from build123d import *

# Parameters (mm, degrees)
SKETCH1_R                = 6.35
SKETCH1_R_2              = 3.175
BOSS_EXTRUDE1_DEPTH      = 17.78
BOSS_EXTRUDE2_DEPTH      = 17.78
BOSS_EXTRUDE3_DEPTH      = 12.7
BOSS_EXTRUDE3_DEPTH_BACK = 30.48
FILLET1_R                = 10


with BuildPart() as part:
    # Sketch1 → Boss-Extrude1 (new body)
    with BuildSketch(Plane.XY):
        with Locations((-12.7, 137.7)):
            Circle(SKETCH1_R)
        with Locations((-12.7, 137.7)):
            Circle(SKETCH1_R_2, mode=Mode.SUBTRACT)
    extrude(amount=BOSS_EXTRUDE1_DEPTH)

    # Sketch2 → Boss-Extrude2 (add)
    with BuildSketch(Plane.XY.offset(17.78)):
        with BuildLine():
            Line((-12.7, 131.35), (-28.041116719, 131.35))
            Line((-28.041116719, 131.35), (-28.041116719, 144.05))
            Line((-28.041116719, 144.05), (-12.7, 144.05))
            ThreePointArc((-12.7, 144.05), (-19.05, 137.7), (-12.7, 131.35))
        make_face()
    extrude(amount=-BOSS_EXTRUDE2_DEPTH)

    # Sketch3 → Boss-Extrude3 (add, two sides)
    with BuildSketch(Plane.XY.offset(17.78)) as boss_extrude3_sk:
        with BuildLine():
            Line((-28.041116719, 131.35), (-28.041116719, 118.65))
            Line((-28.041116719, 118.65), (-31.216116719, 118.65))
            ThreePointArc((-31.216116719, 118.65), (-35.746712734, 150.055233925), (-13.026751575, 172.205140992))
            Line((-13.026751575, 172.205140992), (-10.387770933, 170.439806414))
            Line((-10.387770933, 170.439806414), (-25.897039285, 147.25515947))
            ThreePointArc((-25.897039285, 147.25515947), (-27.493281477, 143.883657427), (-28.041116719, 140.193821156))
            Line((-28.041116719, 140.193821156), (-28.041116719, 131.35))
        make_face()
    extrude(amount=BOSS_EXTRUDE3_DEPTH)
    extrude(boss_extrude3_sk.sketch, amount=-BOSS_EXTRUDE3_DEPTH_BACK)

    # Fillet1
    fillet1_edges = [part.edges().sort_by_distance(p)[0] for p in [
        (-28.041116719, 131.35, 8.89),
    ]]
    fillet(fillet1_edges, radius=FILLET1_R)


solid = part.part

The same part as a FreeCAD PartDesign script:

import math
import FreeCAD as App
import Part
import Sketcher
Q = App.Units.Quantity


def edges_at(feature, points):
    """Names of the edges that pass closest to the given points."""
    edges = feature.Shape.Edges
    near = lambda p: min(range(len(edges)), key=lambda i: edges[i].distToShape(Part.Vertex(*p))[0])
    return sorted({f"Edge{near(p) + 1}" for p in points})

doc = App.newDocument("Part")
body = doc.addObject("PartDesign::Body", "Body")

# Sketch on XY plane
sketch1 = body.newObject("Sketcher::SketchObject", "Sketch")
sketch1.AttachmentSupport = (doc.getObject("XY_Plane"), [""])
sketch1.MapMode = "FlatFace"
sketch1.addGeometry([
    Part.Circle(App.Vector(-12.7, 137.7, 0), App.Vector(0, 0, 1), 6.3),
    Part.Circle(App.Vector(-12.7, 137.7, 0), App.Vector(0, 0, 1), 3.2),
], False)
sketch1.addConstraint([
    Sketcher.Constraint("Coincident", 1, 3, 0, 3),
    Sketcher.Constraint("Diameter", 0, Q("0.5 in")),
    Sketcher.Constraint("Diameter", 1, Q("0.25 in")),
    Sketcher.Constraint("DistanceX", 0, 3, -1, 1, Q("0.5 in")),
    Sketcher.Constraint("DistanceY", -1, 1, 0, 3, Q("137.7 mm")),
])
pad1 = body.newObject("PartDesign::Pad", "Pad")
pad1.Profile = sketch1
pad1.Length = Q("0.7 in")

# Sketch on XY plane
sketch2 = body.newObject("Sketcher::SketchObject", "Sketch001")
sketch2.AttachmentSupport = (doc.getObject("XY_Plane"), [""])
sketch2.MapMode = "FlatFace"
sketch2.AttachmentOffset = App.Placement(App.Vector(0, 0, 0.7 * 25.4), App.Rotation())
sketch2.addGeometry([
    Part.LineSegment(App.Vector(-28, 131, 0), App.Vector(-13, 131, 0)),
    Part.ArcOfCircle(Part.Circle(App.Vector(-13, 138, 0), App.Vector(0, 0, 1), 6), math.radians(90), math.radians(270)),
    Part.LineSegment(App.Vector(-13, 144, 0), App.Vector(-28, 144, 0)),
    Part.LineSegment(App.Vector(-28, 144, 0), App.Vector(-28, 131, 0)),
], False)
sketch2.addConstraint([
    Sketcher.Constraint("Tangent", 0, 2, 1, 2),
    Sketcher.Constraint("Tangent", 1, 1, 2, 1),
    Sketcher.Constraint("Coincident", 2, 2, 3, 1),
    Sketcher.Constraint("Coincident", 3, 2, 0, 1),
    Sketcher.Constraint("Horizontal", 0),
    Sketcher.Constraint("Horizontal", 2),
    Sketcher.Constraint("Vertical", 3),
    Sketcher.Constraint("Radius", 1, Q("0.25 in")),
    Sketcher.Constraint("DistanceX", 1, 3, -1, 1, Q("0.5 in")),
    Sketcher.Constraint("DistanceY", -1, 1, 1, 3, Q("137.7 mm")),
    Sketcher.Constraint("DistanceX", 0, 1, 0, 2, Q("15.341117 mm")),
])
pad2 = body.newObject("PartDesign::Pad", "Pad001")
pad2.Profile = sketch2
pad2.Length = Q("0.7 in")
pad2.Reversed = True

# Sketch on XY plane
sketch3 = body.newObject("Sketcher::SketchObject", "Sketch002")
sketch3.AttachmentSupport = (doc.getObject("XY_Plane"), [""])
sketch3.MapMode = "FlatFace"
sketch3.AttachmentOffset = App.Placement(App.Vector(0, 0, 0.7 * 25.4), App.Rotation())
sketch3.addGeometry([
    Part.LineSegment(App.Vector(-31.2, 118.7, 0), App.Vector(-28, 118.7, 0)),  # 0
    Part.LineSegment(App.Vector(-28, 118.7, 0), App.Vector(-28, 140.2, 0)),  # 1
    Part.ArcOfCircle(Part.Circle(App.Vector(-15.3, 140.2, 0), App.Vector(0, 0, 1), 12.7), math.radians(146), math.radians(180)),  # 2
    Part.LineSegment(App.Vector(-25.9, 147.3, 0), App.Vector(-10.4, 170.4, 0)),  # 3
    Part.LineSegment(App.Vector(-10.4, 170.4, 0), App.Vector(-13, 172.2, 0)),  # 4
    Part.ArcOfCircle(Part.Circle(App.Vector(-2.6, 138.8, 0), App.Vector(0, 0, 1), 35), math.radians(107), math.radians(215)),  # 5
], False)
sketch3.addConstraint([
    Sketcher.Constraint("Coincident", 0, 2, 1, 1),
    Sketcher.Constraint("Tangent", 1, 2, 2, 2),
    Sketcher.Constraint("Tangent", 2, 1, 3, 1),
    Sketcher.Constraint("Coincident", 3, 2, 4, 1),
    Sketcher.Constraint("Coincident", 4, 2, 5, 1),
    Sketcher.Constraint("Coincident", 5, 2, 0, 1),
    Sketcher.Constraint("Horizontal", 0),
    Sketcher.Constraint("Vertical", 1),
    Sketcher.Constraint("Perpendicular", 3, 4),
    Sketcher.Constraint("Radius", 2, Q("0.5 in")),
    Sketcher.Constraint("DistanceX", 0, 1, 0, 2, Q("0.125 in")),
    Sketcher.Constraint("Distance", 4, Q("0.125 in")),
    Sketcher.Constraint("DistanceX", 5, 3, -1, 1, Q("0.1032 in")),
    Sketcher.Constraint("Radius", 5, Q("34.983876 mm")),
    Sketcher.Constraint("DistanceY", 5, 3, 2, 1, Q("0.3327002 in")),
    Sketcher.Constraint("DistanceY", 1, 1, 1, 2, Q("21.543821 mm")),
    Sketcher.Constraint("DistanceY", -1, 1, 0, 2, Q("118.65 mm")),
    Sketcher.Constraint("Distance", 3, Q("27.893821 mm")),
])
pad3 = body.newObject("PartDesign::Pad", "Pad002")
pad3.Profile = sketch3
pad3.Type = "TwoLengths"
pad3.Length = Q("0.5 in")
pad3.Length2 = Q("1.2 in")
doc.recompute()

fillet = body.newObject("PartDesign::Fillet", "Fillet")
fillet.Base = (pad3, edges_at(pad3, [(-28.041, 131.35, 8.89)]))
fillet.Radius = 10

doc.recompute()
